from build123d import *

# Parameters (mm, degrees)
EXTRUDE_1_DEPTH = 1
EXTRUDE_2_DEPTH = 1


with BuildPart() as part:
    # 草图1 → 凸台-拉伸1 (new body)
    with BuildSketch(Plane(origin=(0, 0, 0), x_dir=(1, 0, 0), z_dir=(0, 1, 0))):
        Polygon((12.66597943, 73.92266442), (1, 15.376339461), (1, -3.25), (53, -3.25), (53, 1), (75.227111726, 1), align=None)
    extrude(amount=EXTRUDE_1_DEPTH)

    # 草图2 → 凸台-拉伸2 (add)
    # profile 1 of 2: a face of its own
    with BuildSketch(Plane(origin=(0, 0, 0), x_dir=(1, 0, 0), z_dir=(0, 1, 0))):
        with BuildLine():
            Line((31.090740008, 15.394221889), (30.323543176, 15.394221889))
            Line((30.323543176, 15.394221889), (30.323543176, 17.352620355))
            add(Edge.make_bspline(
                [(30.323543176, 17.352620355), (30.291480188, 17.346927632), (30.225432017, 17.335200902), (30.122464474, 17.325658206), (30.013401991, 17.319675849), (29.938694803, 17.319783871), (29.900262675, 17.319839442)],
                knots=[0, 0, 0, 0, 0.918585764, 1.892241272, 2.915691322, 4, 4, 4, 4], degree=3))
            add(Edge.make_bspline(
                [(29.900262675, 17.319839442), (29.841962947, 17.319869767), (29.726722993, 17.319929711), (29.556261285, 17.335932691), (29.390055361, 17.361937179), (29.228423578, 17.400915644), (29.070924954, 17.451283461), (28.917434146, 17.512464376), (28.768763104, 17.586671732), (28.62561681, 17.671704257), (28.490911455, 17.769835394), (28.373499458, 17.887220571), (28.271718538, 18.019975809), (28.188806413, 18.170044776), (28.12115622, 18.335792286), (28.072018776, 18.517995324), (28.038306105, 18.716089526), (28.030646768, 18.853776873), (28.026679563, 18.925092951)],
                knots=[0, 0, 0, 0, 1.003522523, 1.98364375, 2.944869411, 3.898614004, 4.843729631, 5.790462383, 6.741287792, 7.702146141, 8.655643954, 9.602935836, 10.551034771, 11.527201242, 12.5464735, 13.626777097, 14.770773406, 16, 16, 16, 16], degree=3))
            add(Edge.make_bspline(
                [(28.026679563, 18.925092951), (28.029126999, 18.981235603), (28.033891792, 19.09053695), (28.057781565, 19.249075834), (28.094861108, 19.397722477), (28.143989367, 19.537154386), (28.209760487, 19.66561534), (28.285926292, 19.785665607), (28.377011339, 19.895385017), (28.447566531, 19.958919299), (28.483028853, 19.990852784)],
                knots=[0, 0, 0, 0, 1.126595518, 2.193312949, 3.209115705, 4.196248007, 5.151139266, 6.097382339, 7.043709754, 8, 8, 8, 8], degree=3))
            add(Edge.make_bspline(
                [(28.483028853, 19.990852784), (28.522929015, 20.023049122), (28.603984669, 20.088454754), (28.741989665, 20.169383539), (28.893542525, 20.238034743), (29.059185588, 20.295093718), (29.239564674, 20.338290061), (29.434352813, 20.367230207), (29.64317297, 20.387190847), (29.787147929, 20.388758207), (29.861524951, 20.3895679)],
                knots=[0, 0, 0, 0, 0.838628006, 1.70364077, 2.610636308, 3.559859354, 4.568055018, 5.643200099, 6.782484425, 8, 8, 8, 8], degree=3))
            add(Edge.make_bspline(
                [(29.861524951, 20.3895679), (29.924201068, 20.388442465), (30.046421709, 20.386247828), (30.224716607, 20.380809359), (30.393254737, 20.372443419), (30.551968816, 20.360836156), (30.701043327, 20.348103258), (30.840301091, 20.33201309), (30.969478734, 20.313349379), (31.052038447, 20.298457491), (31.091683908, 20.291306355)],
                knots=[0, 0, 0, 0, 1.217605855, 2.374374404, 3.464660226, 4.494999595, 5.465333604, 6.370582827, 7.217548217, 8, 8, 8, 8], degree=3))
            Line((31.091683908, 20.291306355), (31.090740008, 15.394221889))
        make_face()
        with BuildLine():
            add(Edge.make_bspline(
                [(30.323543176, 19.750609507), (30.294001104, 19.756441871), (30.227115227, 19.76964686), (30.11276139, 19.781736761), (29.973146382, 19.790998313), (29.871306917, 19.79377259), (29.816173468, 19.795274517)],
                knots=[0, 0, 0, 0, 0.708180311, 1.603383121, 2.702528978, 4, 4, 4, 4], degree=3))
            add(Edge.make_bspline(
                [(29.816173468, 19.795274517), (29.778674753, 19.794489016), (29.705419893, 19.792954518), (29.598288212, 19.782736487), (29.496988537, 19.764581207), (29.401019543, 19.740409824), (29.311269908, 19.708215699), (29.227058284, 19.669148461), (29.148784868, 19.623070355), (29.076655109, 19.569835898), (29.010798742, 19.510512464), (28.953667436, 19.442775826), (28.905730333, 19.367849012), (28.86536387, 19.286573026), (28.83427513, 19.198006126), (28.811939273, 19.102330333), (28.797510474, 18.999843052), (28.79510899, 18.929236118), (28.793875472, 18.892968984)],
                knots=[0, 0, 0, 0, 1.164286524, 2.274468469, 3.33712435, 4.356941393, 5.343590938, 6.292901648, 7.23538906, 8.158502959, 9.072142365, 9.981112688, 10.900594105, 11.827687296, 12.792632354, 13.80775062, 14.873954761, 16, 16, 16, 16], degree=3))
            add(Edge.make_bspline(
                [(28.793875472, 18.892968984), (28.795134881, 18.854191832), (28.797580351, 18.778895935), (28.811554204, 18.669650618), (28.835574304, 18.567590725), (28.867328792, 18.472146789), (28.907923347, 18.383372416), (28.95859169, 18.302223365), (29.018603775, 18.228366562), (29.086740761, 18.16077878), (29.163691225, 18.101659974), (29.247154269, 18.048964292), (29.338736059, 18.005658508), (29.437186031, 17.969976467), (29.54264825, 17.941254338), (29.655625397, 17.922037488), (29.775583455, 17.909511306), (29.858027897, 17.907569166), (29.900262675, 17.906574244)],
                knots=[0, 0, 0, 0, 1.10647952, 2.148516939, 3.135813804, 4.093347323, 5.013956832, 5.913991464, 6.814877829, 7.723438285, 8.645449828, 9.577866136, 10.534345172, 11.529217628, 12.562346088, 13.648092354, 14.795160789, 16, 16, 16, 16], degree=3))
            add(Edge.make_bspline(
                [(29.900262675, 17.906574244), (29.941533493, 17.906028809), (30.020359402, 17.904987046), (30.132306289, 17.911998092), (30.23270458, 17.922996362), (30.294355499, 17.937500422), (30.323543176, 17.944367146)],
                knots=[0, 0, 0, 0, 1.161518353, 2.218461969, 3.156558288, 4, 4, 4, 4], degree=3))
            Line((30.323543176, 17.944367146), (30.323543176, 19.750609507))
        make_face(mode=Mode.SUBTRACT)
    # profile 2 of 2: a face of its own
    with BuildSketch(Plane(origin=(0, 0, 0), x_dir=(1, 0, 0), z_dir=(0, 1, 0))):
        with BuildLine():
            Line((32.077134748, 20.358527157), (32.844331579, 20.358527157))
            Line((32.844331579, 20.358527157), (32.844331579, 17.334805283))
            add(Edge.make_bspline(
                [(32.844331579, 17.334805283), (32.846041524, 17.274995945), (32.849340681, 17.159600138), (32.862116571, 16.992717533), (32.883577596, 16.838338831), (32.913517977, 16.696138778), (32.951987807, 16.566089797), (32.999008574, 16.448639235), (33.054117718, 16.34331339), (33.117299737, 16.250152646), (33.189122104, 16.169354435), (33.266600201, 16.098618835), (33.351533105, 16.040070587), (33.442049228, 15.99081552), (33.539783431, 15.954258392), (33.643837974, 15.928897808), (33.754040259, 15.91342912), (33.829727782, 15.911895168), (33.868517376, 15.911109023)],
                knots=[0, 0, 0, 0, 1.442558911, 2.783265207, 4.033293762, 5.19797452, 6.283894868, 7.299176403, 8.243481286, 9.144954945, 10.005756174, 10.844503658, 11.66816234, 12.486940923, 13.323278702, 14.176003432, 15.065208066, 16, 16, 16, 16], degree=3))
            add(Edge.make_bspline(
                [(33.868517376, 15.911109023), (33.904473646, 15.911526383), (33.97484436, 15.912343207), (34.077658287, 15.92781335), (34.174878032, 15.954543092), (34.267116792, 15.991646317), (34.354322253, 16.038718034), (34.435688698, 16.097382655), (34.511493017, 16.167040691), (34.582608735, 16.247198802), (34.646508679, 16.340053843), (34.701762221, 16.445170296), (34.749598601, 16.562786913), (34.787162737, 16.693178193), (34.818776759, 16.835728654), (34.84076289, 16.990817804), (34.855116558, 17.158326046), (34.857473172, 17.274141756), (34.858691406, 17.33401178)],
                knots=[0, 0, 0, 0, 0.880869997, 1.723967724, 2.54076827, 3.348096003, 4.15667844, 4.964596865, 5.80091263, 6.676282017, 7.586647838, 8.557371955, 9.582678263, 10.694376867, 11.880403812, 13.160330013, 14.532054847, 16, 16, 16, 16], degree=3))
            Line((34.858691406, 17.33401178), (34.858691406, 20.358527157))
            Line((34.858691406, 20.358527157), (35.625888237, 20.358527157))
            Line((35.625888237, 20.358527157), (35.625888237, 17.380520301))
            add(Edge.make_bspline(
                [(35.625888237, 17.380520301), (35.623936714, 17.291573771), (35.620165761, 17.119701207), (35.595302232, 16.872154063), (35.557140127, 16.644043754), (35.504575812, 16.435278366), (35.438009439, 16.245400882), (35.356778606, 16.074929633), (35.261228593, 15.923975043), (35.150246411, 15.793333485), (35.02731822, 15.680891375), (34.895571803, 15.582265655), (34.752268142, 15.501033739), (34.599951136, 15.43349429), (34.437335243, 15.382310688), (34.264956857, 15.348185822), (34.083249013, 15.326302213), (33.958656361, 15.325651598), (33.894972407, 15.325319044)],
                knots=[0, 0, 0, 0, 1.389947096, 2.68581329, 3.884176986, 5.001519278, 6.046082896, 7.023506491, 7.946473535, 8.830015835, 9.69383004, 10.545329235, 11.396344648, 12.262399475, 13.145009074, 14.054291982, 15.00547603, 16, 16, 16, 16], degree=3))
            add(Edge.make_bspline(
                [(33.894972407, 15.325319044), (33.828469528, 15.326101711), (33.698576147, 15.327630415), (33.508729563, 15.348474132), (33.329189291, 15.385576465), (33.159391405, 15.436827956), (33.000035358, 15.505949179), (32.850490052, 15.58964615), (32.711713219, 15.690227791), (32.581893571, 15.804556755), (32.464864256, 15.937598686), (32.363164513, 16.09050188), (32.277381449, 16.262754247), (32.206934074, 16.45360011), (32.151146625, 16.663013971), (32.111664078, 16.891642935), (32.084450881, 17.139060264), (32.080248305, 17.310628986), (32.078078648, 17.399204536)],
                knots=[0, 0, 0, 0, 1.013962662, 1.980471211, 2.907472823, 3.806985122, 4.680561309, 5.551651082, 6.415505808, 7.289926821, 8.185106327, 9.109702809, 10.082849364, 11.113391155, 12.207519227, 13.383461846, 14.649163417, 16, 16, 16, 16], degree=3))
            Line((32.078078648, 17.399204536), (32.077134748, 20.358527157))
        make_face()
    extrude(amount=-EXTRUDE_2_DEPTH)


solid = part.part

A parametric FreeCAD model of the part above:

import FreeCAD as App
import Part
import Sketcher
Q = App.Units.Quantity

doc = App.newDocument("Part")
body = doc.addObject("PartDesign::Body", "Body")

sketch1 = body.newObject("Sketcher::SketchObject", "Sketch")
sketch1.AttachmentSupport = (doc.getObject("XZ_Plane"), [""])
sketch1.MapMode = "FlatFace"
sketch1.addGeometry(Part.LineSegment(App.Vector(12.665979, -73.922664, 0), App.Vector(1, -15.376339, 0)), False)
sketch1.addGeometry(Part.LineSegment(App.Vector(1, -15.376339, 0), App.Vector(1, 3.25, 0)), False)
sketch1.addGeometry(Part.LineSegment(App.Vector(1, 3.25, 0), App.Vector(53, 3.25, 0)), False)
sketch1.addGeometry(Part.LineSegment(App.Vector(53, 3.25, 0), App.Vector(53, -1, 0)), False)
sketch1.addGeometry(Part.LineSegment(App.Vector(53, -1, 0), App.Vector(75.227112, -1, 0)), False)
sketch1.addGeometry(Part.LineSegment(App.Vector(75.227112, -1, 0), App.Vector(12.665979, -73.922664, 0)), False)
sketch1.addConstraint(Sketcher.Constraint("Coincident", 0, 2, 1, 1))
sketch1.addConstraint(Sketcher.Constraint("Coincident", 1, 2, 2, 1))
sketch1.addConstraint(Sketcher.Constraint("Coincident", 2, 2, 3, 1))
sketch1.addConstraint(Sketcher.Constraint("Coincident", 3, 2, 4, 1))
sketch1.addConstraint(Sketcher.Constraint("Coincident", 4, 2, 5, 1))
sketch1.addConstraint(Sketcher.Constraint("Coincident", 5, 2, 0, 1))
sketch1.addConstraint(Sketcher.Constraint("Vertical", 1))
sketch1.addConstraint(Sketcher.Constraint("Horizontal", 2))
sketch1.addConstraint(Sketcher.Constraint("Vertical", 3))
sketch1.addConstraint(Sketcher.Constraint("Horizontal", 4))
sketch1.addConstraint(Sketcher.Constraint("DistanceX", 2, 1, 2, 2, Q("52 mm")))
sketch1.addConstraint(Sketcher.Constraint("DistanceX", -1, 1, 0, 2, Q("1 mm")))
sketch1.addConstraint(Sketcher.Constraint("DistanceY", 3, 2, -1, 1, Q("1 mm")))
sketch1.addConstraint(Sketcher.Constraint("DistanceY", 3, 2, 3, 1, Q("4.25 mm")))
sketch1.addConstraint(Sketcher.Constraint("DistanceX", 4, 1, 4, 2, Q("22.227112 mm")))
sketch1.addConstraint(Sketcher.Constraint("DistanceY", 1, 1, 1, 2, Q("18.626339 mm")))
sketch1.addConstraint(Sketcher.Constraint("Distance", 5, Q("96.081269 mm")))
sketch1.addConstraint(Sketcher.Constraint("DistanceX", -1, 1, 5, 2, Q("12.665979 mm")))
pad1 = body.newObject("PartDesign::Pad", "Pad")
pad1.Profile = sketch1
pad1.Length = 1
pad1.Reversed = True

sketch2 = body.newObject("Sketcher::SketchObject", "Sketch001")
sketch2.AttachmentSupport = (doc.getObject("XZ_Plane"), [""])
sketch2.MapMode = "FlatFace"
sketch2.addGeometry(Part.LineSegment(App.Vector(30.323543, -15.394222, 0), App.Vector(31.09074, -15.394222, 0)), False)
sketch2.addGeometry(Part.LineSegment(App.Vector(31.09074, -15.394222, 0), App.Vector(31.091684, -20.291306, 0)), False)
sketch2.addGeometry(Part.BSplineCurve([App.Vector(29.861525, -20.389568, 0), App.Vector(29.924201, -20.388442, 0), App.Vector(30.046422, -20.386248, 0), App.Vector(30.224717, -20.380809, 0), App.Vector(30.393255, -20.372443, 0), App.Vector(30.551969, -20.360836, 0), App.Vector(30.701043, -20.348103, 0), App.Vector(30.840301, -20.332013, 0), App.Vector(30.969479, -20.313349, 0), App.Vector(31.052038, -20.298457, 0), App.Vector(31.091684, -20.291306, 0)], [4, 1, 1, 1, 1, 1, 1, 1, 4], [0, 1.217605855, 2.374374404, 3.464660226, 4.494999595, 5.465333604, 6.370582827, 7.217548217, 8], False, 3, [1, 1, 1, 1, 1, 1, 1, 1, 1, 1, 1], False), False)
sketch2.addGeometry(Part.BSplineCurve([App.Vector(28.483029, -19.990853, 0), App.Vector(28.522929, -20.023049, 0), App.Vector(28.603985, -20.088455, 0), App.Vector(28.74199, -20.169384, 0), App.Vector(28.893543, -20.238035, 0), App.Vector(29.059186, -20.295094, 0), App.Vector(29.239565, -20.33829, 0), App.Vector(29.434353, -20.36723, 0), App.Vector(29.643173, -20.387191, 0), App.Vector(29.787148, -20.388758, 0), App.Vector(29.861525, -20.389568, 0)], [4, 1, 1, 1, 1, 1, 1, 1, 4], [0, 0.838628006, 1.70364077, 2.610636308, 3.559859354, 4.568055018, 5.643200099, 6.782484425, 8], False, 3, [1, 1, 1, 1, 1, 1, 1, 1, 1, 1, 1], False), False)
sketch2.addGeometry(Part.BSplineCurve([App.Vector(28.02668, -18.925093, 0), App.Vector(28.029127, -18.981236, 0), App.Vector(28.033892, -19.090537, 0), App.Vector(28.057782, -19.249076, 0), App.Vector(28.094861, -19.397722, 0), App.Vector(28.143989, -19.537154, 0), App.Vector(28.20976, -19.665615, 0), App.Vector(28.285926, -19.785666, 0), App.Vector(28.377011, -19.895385, 0), App.Vector(28.447567, -19.958919, 0), App.Vector(28.483029, -19.990853, 0)], [4, 1, 1, 1, 1, 1, 1, 1, 4], [0, 1.126595518, 2.193312949, 3.209115705, 4.196248007, 5.151139266, 6.097382339, 7.043709754, 8], False, 3, [1, 1, 1, 1, 1, 1, 1, 1, 1, 1, 1], False), False)
sketch2.addGeometry(Part.BSplineCurve([App.Vector(29.900263, -17.319839, 0), App.Vector(29.841963, -17.31987, 0), App.Vector(29.726723, -17.31993, 0), App.Vector(29.556261, -17.335933, 0), App.Vector(29.390055, -17.361937, 0), App.Vector(29.228424, -17.400916, 0), App.Vector(29.070925, -17.451283, 0), App.Vector(28.917434, -17.512464, 0), App.Vector(28.768763, -17.586672, 0), App.Vector(28.625617, -17.671704, 0), App.Vector(28.490911, -17.769835, 0), App.Vector(28.373499, -17.887221, 0), App.Vector(28.271719, -18.019976, 0), App.Vector(28.188806, -18.170045, 0), App.Vector(28.121156, -18.335792, 0), App.Vector(28.072019, -18.517995, 0), App.Vector(28.038306, -18.71609, 0), App.Vector(28.030647, -18.853777, 0), App.Vector(28.02668, -18.925093, 0)], [4, 1, 1, 1, 1, 1, 1, 1, 1, 1, 1, 1, 1, 1, 1, 1, 4], [0, 1.003522523, 1.98364375, 2.944869411, 3.898614004, 4.843729631, 5.790462383, 6.741287792, 7.702146141, 8.655643954, 9.602935836, 10.551034771, 11.527201242, 12.5464735, 13.626777097, 14.770773406, 16], False, 3, [1, 1, 1, 1, 1, 1, 1, 1, 1, 1, 1, 1, 1, 1, 1, 1, 1, 1, 1], False), False)
sketch2.addGeometry(Part.BSplineCurve([App.Vector(30.323543, -17.35262, 0), App.Vector(30.29148, -17.346928, 0), App.Vector(30.225432, -17.335201, 0), App.Vector(30.122464, -17.325658, 0), App.Vector(30.013402, -17.319676, 0), App.Vector(29.938695, -17.319784, 0), App.Vector(29.900263, -17.319839, 0)], [4, 1, 1, 1, 4], [0, 0.918585764, 1.892241272, 2.915691322, 4], False, 3, [1, 1, 1, 1, 1, 1, 1], False), False)
sketch2.addGeometry(Part.LineSegment(App.Vector(30.323543, -17.35262, 0), App.Vector(30.323543, -15.394222, 0)), False)
sketch2.addGeometry(Part.LineSegment(App.Vector(30.323543, -19.75061, 0), App.Vector(30.323543, -17.944367, 0)), False)
sketch2.addGeometry(Part.BSplineCurve([App.Vector(29.900263, -17.906574, 0), App.Vector(29.941533, -17.906029, 0), App.Vector(30.020359, -17.904987, 0), App.Vector(30.132306, -17.911998, 0), App.Vector(30.232705, -17.922996, 0), App.Vector(30.294355, -17.9375, 0), App.Vector(30.323543, -17.944367, 0)], [4, 1, 1, 1, 4], [0, 1.161518353, 2.218461969, 3.156558288, 4], False, 3, [1, 1, 1, 1, 1, 1, 1], False), False)
sketch2.addGeometry(Part.BSplineCurve([App.Vector(28.793875, -18.892969, 0), App.Vector(28.795135, -18.854192, 0), App.Vector(28.79758, -18.778896, 0), App.Vector(28.811554, -18.669651, 0), App.Vector(28.835574, -18.567591, 0), App.Vector(28.867329, -18.472147, 0), App.Vector(28.907923, -18.383372, 0), App.Vector(28.958592, -18.302223, 0), App.Vector(29.018604, -18.228367, 0), App.Vector(29.086741, -18.160779, 0), App.Vector(29.163691, -18.10166, 0), App.Vector(29.247154, -18.048964, 0), App.Vector(29.338736, -18.005659, 0), App.Vector(29.437186, -17.969976, 0), App.Vector(29.542648, -17.941254, 0), App.Vector(29.655625, -17.922037, 0), App.Vector(29.775583, -17.909511, 0), App.Vector(29.858028, -17.907569, 0), App.Vector(29.900263, -17.906574, 0)], [4, 1, 1, 1, 1, 1, 1, 1, 1, 1, 1, 1, 1, 1, 1, 1, 4], [0, 1.10647952, 2.148516939, 3.135813804, 4.093347323, 5.013956832, 5.913991464, 6.814877829, 7.723438285, 8.645449828, 9.577866136, 10.534345172, 11.529217628, 12.562346088, 13.648092354, 14.795160789, 16], False, 3, [1, 1, 1, 1, 1, 1, 1, 1, 1, 1, 1, 1, 1, 1, 1, 1, 1, 1, 1], False), False)
sketch2.addGeometry(Part.BSplineCurve([App.Vector(29.816173, -19.795275, 0), App.Vector(29.778675, -19.794489, 0), App.Vector(29.70542, -19.792955, 0), App.Vector(29.598288, -19.782736, 0), App.Vector(29.496989, -19.764581, 0), App.Vector(29.40102, -19.74041, 0), App.Vector(29.31127, -19.708216, 0), App.Vector(29.227058, -19.669148, 0), App.Vector(29.148785, -19.62307, 0), App.Vector(29.076655, -19.569836, 0), App.Vector(29.010799, -19.510512, 0), App.Vector(28.953667, -19.442776, 0), App.Vector(28.90573, -19.367849, 0), App.Vector(28.865364, -19.286573, 0), App.Vector(28.834275, -19.198006, 0), App.Vector(28.811939, -19.10233, 0), App.Vector(28.79751, -18.999843, 0), App.Vector(28.795109, -18.929236, 0), App.Vector(28.793875, -18.892969, 0)], [4, 1, 1, 1, 1, 1, 1, 1, 1, 1, 1, 1, 1, 1, 1, 1, 4], [0, 1.164286524, 2.274468469, 3.33712435, 4.356941393, 5.343590938, 6.292901648, 7.23538906, 8.158502959, 9.072142365, 9.981112688, 10.900594105, 11.827687296, 12.792632354, 13.80775062, 14.873954761, 16], False, 3, [1, 1, 1, 1, 1, 1, 1, 1, 1, 1, 1, 1, 1, 1, 1, 1, 1, 1, 1], False), False)
sketch2.addGeometry(Part.BSplineCurve([App.Vector(30.323543, -19.75061, 0), App.Vector(30.294001, -19.756442, 0), App.Vector(30.227115, -19.769647, 0), App.Vector(30.112761, -19.781737, 0), App.Vector(29.973146, -19.790998, 0), App.Vector(29.871307, -19.793773, 0), App.Vector(29.816173, -19.795275, 0)], [4, 1, 1, 1, 4], [0, 0.708180311, 1.603383121, 2.702528978, 4], False, 3, [1, 1, 1, 1, 1, 1, 1], False), False)
sketch2.addGeometry(Part.LineSegment(App.Vector(32.844332, -20.358527, 0), App.Vector(32.077135, -20.358527, 0)), False)
sketch2.addGeometry(Part.LineSegment(App.Vector(32.077135, -20.358527, 0), App.Vector(32.078079, -17.399205, 0)), False)
sketch2.addGeometry(Part.BSplineCurve([App.Vector(33.894972, -15.325319, 0), App.Vector(33.82847, -15.326102, 0), App.Vector(33.698576, -15.32763, 0), App.Vector(33.50873, -15.348474, 0), App.Vector(33.329189, -15.385576, 0), App.Vector(33.159391, -15.436828, 0), App.Vector(33.000035, -15.505949, 0), App.Vector(32.85049, -15.589646, 0), App.Vector(32.711713, -15.690228, 0), App.Vector(32.581894, -15.804557, 0), App.Vector(32.464864, -15.937599, 0), App.Vector(32.363165, -16.090502, 0), App.Vector(32.277381, -16.262754, 0), App.Vector(32.206934, -16.4536, 0), App.Vector(32.151147, -16.663014, 0), App.Vector(32.111664, -16.891643, 0), App.Vector(32.084451, -17.13906, 0), App.Vector(32.080248, -17.310629, 0), App.Vector(32.078079, -17.399205, 0)], [4, 1, 1, 1, 1, 1, 1, 1, 1, 1, 1, 1, 1, 1, 1, 1, 4], [0, 1.013962662, 1.980471211, 2.907472823, 3.806985122, 4.680561309, 5.551651082, 6.415505808, 7.289926821, 8.185106327, 9.109702809, 10.082849364, 11.113391155, 12.207519227, 13.383461846, 14.649163417, 16], False, 3, [1, 1, 1, 1, 1, 1, 1, 1, 1, 1, 1, 1, 1, 1, 1, 1, 1, 1, 1], False), False)
sketch2.addGeometry(Part.BSplineCurve([App.Vector(35.625888, -17.38052, 0), App.Vector(35.623937, -17.291574, 0), App.Vector(35.620166, -17.119701, 0), App.Vector(35.595302, -16.872154, 0), App.Vector(35.55714, -16.644044, 0), App.Vector(35.504576, -16.435278, 0), App.Vector(35.438009, -16.245401, 0), App.Vector(35.356779, -16.07493, 0), App.Vector(35.261229, -15.923975, 0), App.Vector(35.150246, -15.793333, 0), App.Vector(35.027318, -15.680891, 0), App.Vector(34.895572, -15.582266, 0), App.Vector(34.752268, -15.501034, 0), App.Vector(34.599951, -15.433494, 0), App.Vector(34.437335, -15.382311, 0), App.Vector(34.264957, -15.348186, 0), App.Vector(34.083249, -15.326302, 0), App.Vector(33.958656, -15.325652, 0), App.Vector(33.894972, -15.325319, 0)], [4, 1, 1, 1, 1, 1, 1, 1, 1, 1, 1, 1, 1, 1, 1, 1, 4], [0, 1.389947096, 2.68581329, 3.884176986, 5.001519278, 6.046082896, 7.023506491, 7.946473535, 8.830015835, 9.69383004, 10.545329235, 11.396344648, 12.262399475, 13.145009074, 14.054291982, 15.00547603, 16], False, 3, [1, 1, 1, 1, 1, 1, 1, 1, 1, 1, 1, 1, 1, 1, 1, 1, 1, 1, 1], False), False)
sketch2.addGeometry(Part.LineSegment(App.Vector(35.625888, -17.38052, 0), App.Vector(35.625888, -20.358527, 0)), False)
sketch2.addGeometry(Part.LineSegment(App.Vector(35.625888, -20.358527, 0), App.Vector(34.858691, -20.358527, 0)), False)
sketch2.addGeometry(Part.LineSegment(App.Vector(34.858691, -20.358527, 0), App.Vector(34.858691, -17.334012, 0)), False)
sketch2.addGeometry(Part.BSplineCurve([App.Vector(33.868517, -15.911109, 0), App.Vector(33.904474, -15.911526, 0), App.Vector(33.974844, -15.912343, 0), App.Vector(34.077658, -15.927813, 0), App.Vector(34.174878, -15.954543, 0), App.Vector(34.267117, -15.991646, 0), App.Vector(34.354322, -16.038718, 0), App.Vector(34.435689, -16.097383, 0), App.Vector(34.511493, -16.167041, 0), App.Vector(34.582609, -16.247199, 0), App.Vector(34.646509, -16.340054, 0), App.Vector(34.701762, -16.44517, 0), App.Vector(34.749599, -16.562787, 0), App.Vector(34.787163, -16.693178, 0), App.Vector(34.818777, -16.835729, 0), App.Vector(34.840763, -16.990818, 0), App.Vector(34.855117, -17.158326, 0), App.Vector(34.857473, -17.274142, 0), App.Vector(34.858691, -17.334012, 0)], [4, 1, 1, 1, 1, 1, 1, 1, 1, 1, 1, 1, 1, 1, 1, 1, 4], [0, 0.880869997, 1.723967724, 2.54076827, 3.348096003, 4.15667844, 4.964596865, 5.80091263, 6.676282017, 7.586647838, 8.557371955, 9.582678263, 10.694376867, 11.880403812, 13.160330013, 14.532054847, 16], False, 3, [1, 1, 1, 1, 1, 1, 1, 1, 1, 1, 1, 1, 1, 1, 1, 1, 1, 1, 1], False), False)
sketch2.addGeometry(Part.BSplineCurve([App.Vector(32.844332, -17.334805, 0), App.Vector(32.846042, -17.274996, 0), App.Vector(32.849341, -17.1596, 0), App.Vector(32.862117, -16.992718, 0), App.Vector(32.883578, -16.838339, 0), App.Vector(32.913518, -16.696139, 0), App.Vector(32.951988, -16.56609, 0), App.Vector(32.999009, -16.448639, 0), App.Vector(33.054118, -16.343313, 0), App.Vector(33.1173, -16.250153, 0), App.Vector(33.189122, -16.169354, 0), App.Vector(33.2666, -16.098619, 0), App.Vector(33.351533, -16.040071, 0), App.Vector(33.442049, -15.990816, 0), App.Vector(33.539783, -15.954258, 0), App.Vector(33.643838, -15.928898, 0), App.Vector(33.75404, -15.913429, 0), App.Vector(33.829728, -15.911895, 0), App.Vector(33.868517, -15.911109, 0)], [4, 1, 1, 1, 1, 1, 1, 1, 1, 1, 1, 1, 1, 1, 1, 1, 4], [0, 1.442558911, 2.783265207, 4.033293762, 5.19797452, 6.283894868, 7.299176403, 8.243481286, 9.144954945, 10.005756174, 10.844503658, 11.66816234, 12.486940923, 13.323278702, 14.176003432, 15.065208066, 16], False, 3, [1, 1, 1, 1, 1, 1, 1, 1, 1, 1, 1, 1, 1, 1, 1, 1, 1, 1, 1], False), False)
sketch2.addGeometry(Part.LineSegment(App.Vector(32.844332, -17.334805, 0), App.Vector(32.844332, -20.358527, 0)), False)
sketch2.addConstraint(Sketcher.Constraint("Block", 2))
sketch2.addConstraint(Sketcher.Constraint("Block", 3))
sketch2.addConstraint(Sketcher.Constraint("Block", 4))
sketch2.addConstraint(Sketcher.Constraint("Block", 5))
sketch2.addConstraint(Sketcher.Constraint("Block", 6))
sketch2.addConstraint(Sketcher.Constraint("Block", 9))
sketch2.addConstraint(Sketcher.Constraint("Block", 10))
sketch2.addConstraint(Sketcher.Constraint("Block", 11))
sketch2.addConstraint(Sketcher.Constraint("Block", 12))
sketch2.addConstraint(Sketcher.Constraint("Block", 15))
sketch2.addConstraint(Sketcher.Constraint("Block", 16))
sketch2.addConstraint(Sketcher.Constraint("Block", 20))
sketch2.addConstraint(Sketcher.Constraint("Block", 21))
sketch2.addConstraint(Sketcher.Constraint("Coincident", 0, 2, 1, 1))
sketch2.addConstraint(Sketcher.Constraint("Coincident", 1, 2, 2, 2))
sketch2.addConstraint(Sketcher.Constraint("Coincident", 6, 1, 7, 1))
sketch2.addConstraint(Sketcher.Constraint("Coincident", 7, 2, 0, 1))
sketch2.addConstraint(Sketcher.Constraint("Coincident", 8, 2, 9, 2))
sketch2.addConstraint(Sketcher.Constraint("Coincident", 12, 1, 8, 1))
sketch2.addConstraint(Sketcher.Constraint("Coincident", 13, 2, 14, 1))
sketch2.addConstraint(Sketcher.Constraint("Coincident", 14, 2, 15, 2))
sketch2.addConstraint(Sketcher.Constraint("Coincident", 16, 1, 17, 1))
sketch2.addConstraint(Sketcher.Constraint("Coincident", 17, 2, 18, 1))
sketch2.addConstraint(Sketcher.Constraint("Coincident", 18, 2, 19, 1))
sketch2.addConstraint(Sketcher.Constraint("Coincident", 19, 2, 20, 2))
sketch2.addConstraint(Sketcher.Constraint("Coincident", 21, 1, 22, 1))
sketch2.addConstraint(Sketcher.Constraint("Coincident", 22, 2, 13, 1))
sketch2.addConstraint(Sketcher.Constraint("Horizontal", 0))
sketch2.addConstraint(Sketcher.Constraint("Vertical", 7))
sketch2.addConstraint(Sketcher.Constraint("Horizontal", 13))
sketch2.addConstraint(Sketcher.Constraint("Vertical", 17))
sketch2.addConstraint(Sketcher.Constraint("Horizontal", 18))
sketch2.addConstraint(Sketcher.Constraint("Vertical", 19))
sketch2.addConstraint(Sketcher.Constraint("Vertical", 22))
sketch2.addConstraint(Sketcher.Constraint("DistanceY", 7, 1, 7, 2, Q("1.958398 mm")))
sketch2.addConstraint(Sketcher.Constraint("DistanceY", 22, 2, 22, 1, Q("3.023722 mm")))
sketch2.addConstraint(Sketcher.Constraint("DistanceX", 0, 1, 0, 2, Q("0.767197 mm")))
sketch2.addConstraint(Sketcher.Constraint("DistanceX", 13, 2, 13, 1, Q("0.767197 mm")))
sketch2.addConstraint(Sketcher.Constraint("DistanceY", 17, 2, 17, 1, Q("2.978007 mm")))
pad2 = body.newObject("PartDesign::Pad", "Pad001")
pad2.Profile = sketch2
pad2.Length = 1

doc.recompute()
